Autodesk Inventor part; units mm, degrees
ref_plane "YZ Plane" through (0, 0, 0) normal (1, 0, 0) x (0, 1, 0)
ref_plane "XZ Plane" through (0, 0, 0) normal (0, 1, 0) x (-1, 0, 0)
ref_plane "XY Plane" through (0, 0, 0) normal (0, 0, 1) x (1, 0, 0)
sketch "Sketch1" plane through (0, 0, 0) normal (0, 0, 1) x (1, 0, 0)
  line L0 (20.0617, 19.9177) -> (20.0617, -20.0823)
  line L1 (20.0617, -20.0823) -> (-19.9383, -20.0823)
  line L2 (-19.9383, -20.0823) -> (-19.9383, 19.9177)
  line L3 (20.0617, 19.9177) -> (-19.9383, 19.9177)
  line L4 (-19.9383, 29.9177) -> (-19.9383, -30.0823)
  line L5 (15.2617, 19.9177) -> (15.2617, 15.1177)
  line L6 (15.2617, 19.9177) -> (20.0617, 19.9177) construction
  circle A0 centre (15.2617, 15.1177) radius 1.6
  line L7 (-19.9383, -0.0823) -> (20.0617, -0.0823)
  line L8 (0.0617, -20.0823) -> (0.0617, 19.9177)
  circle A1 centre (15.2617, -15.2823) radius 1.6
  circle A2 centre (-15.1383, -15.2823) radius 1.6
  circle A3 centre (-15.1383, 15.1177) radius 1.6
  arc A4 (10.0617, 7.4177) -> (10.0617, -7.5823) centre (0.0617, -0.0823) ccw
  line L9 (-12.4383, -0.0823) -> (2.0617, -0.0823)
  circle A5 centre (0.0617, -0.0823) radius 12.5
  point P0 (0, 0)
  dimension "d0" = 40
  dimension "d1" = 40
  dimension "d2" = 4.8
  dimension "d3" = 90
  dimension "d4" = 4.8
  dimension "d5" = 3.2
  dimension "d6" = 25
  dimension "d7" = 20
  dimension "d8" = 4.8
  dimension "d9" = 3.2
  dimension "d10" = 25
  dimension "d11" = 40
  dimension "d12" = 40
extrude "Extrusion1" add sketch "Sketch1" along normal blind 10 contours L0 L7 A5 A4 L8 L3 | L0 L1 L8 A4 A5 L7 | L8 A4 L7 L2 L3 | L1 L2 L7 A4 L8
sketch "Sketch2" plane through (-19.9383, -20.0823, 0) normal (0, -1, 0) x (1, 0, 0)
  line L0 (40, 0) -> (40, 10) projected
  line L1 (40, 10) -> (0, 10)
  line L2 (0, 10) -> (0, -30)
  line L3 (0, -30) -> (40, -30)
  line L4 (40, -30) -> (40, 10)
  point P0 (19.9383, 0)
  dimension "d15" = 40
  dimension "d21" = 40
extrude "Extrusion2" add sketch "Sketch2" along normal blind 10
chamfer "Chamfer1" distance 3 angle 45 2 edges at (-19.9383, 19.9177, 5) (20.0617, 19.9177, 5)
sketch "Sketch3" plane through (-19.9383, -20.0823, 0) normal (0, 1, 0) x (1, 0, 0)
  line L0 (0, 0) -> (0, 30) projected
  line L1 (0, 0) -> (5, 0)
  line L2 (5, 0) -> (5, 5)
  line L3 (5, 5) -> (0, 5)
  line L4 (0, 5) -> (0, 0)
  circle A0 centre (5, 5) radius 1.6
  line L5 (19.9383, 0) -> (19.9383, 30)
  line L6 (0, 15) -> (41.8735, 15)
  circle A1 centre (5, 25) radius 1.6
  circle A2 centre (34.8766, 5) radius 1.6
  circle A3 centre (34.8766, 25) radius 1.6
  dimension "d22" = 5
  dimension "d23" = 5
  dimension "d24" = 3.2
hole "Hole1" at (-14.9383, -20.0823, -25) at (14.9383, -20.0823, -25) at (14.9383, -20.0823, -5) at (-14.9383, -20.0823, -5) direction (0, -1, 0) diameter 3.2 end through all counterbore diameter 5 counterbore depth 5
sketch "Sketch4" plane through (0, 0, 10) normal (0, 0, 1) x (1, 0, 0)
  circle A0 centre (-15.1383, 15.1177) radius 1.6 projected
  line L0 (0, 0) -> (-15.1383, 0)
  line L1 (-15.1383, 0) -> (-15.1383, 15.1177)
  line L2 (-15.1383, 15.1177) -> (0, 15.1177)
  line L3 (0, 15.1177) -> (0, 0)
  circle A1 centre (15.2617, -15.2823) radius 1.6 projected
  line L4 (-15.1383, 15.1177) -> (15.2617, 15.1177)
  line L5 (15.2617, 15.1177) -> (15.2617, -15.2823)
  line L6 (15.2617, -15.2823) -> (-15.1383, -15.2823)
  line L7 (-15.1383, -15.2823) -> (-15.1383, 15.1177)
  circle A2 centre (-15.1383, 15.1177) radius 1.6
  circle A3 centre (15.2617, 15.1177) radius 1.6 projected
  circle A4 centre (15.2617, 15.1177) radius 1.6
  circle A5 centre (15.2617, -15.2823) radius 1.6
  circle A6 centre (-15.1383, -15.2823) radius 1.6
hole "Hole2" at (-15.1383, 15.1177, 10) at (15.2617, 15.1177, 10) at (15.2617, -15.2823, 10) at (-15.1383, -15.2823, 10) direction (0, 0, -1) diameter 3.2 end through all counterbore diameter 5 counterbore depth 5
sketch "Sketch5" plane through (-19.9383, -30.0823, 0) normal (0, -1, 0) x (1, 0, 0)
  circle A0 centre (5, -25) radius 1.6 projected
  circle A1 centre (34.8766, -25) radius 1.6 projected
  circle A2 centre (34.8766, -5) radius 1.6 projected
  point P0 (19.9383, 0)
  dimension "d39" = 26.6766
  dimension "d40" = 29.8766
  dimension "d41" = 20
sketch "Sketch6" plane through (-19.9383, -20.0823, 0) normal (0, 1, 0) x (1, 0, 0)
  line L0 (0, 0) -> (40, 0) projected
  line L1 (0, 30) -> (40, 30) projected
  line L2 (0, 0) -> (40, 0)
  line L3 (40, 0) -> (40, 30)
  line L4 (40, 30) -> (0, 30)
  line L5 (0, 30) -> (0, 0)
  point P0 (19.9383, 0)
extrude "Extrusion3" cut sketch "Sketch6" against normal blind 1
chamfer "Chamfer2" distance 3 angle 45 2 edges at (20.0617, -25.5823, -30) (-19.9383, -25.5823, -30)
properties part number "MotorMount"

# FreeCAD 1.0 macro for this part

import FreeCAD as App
import Part
import Sketcher


def edges_at(feature, points):
    """Names of the edges that pass closest to the given points."""
    edges = feature.Shape.Edges
    near = lambda p: min(range(len(edges)), key=lambda i: edges[i].distToShape(Part.Vertex(*p))[0])
    return sorted({f"Edge{near(p) + 1}" for p in points})


def add_polygon(sketch, points):
    """Adds a closed chain of lines whose ends are joined by coincident constraints."""
    first, n = sketch.GeometryCount, len(points)
    for a, b in zip(points, points[1:] + points[:1]):
        sketch.addGeometry(Part.LineSegment(App.Vector(*a, 0), App.Vector(*b, 0)), False)
    for i in range(n):
        sketch.addConstraint(Sketcher.Constraint("Coincident", first + i, 2, first + (i + 1) % n, 1))

doc = App.newDocument("Part")
params = doc.addObject("Spreadsheet::Sheet", "Params")
for row, (alias, value) in enumerate([
    ("sketch1_diameter", "25 mm"),
    ("sketch1_diameter2", "3.2 mm"),
    ("sketch1_width", "40 mm"),
    ("sketch1_width2", "4.8 mm"),
    ("pad1_length", "10 mm"),
    ("sketch2_width", "40 mm"),
    ("pad2_length", "10 mm"),
    ("chamfer_size", "3 mm"),
    ("sketch3_diameter", "3.2 mm"),
    ("hole_diameter", "3.2 mm"),
    ("hole_cbore_diameter", "5 mm"),
    ("hole_cbore_depth", "5 mm"),
    ("sketch4_diameter", "3.2 mm"),
    ("hole2_diameter", "3.2 mm"),
    ("hole2_cbore_diameter", "5 mm"),
    ("hole2_cbore_depth", "5 mm"),
    ("sketch5_width", "40 mm"),
    ("sketch5_height", "30 mm"),
    ("pocket1_length", "1 mm"),
    ("chamfer2_size", "3 mm"),
], start=1):
    params.set(f"A{row}", alias)
    params.set(f"B{row}", "=" + value)
    params.setAlias(f"B{row}", alias)

body = doc.addObject("PartDesign::Body", "Body")

# Sketch on XY plane
sketch1 = body.newObject("Sketcher::SketchObject", "Sketch")
sketch1.AttachmentSupport = (doc.getObject("XY_Plane"), [""])
sketch1.MapMode = "FlatFace"
add_polygon(sketch1, [(20.1, 19.9), (15.3, 19.9), (-19.9, 19.9), (-19.9, -20.1), (20.1, -20.1)])  # lines 0-4
sketch1.addGeometry(Part.Circle(App.Vector(0.1, -0.1, 0), App.Vector(0, 0, 1), 12.5), False)  # 5
sketch1.addGeometry(Part.Circle(App.Vector(15.3, 15.1, 0), App.Vector(0, 0, 1), 1.6), False)  # 6
sketch1.addGeometry(Part.Circle(App.Vector(15.3, -15.3, 0), App.Vector(0, 0, 1), 1.6), False)  # 7
sketch1.addGeometry(Part.Circle(App.Vector(-15.1, 15.1, 0), App.Vector(0, 0, 1), 1.6), False)  # 8
sketch1.addGeometry(Part.Circle(App.Vector(-15.1, -15.3, 0), App.Vector(0, 0, 1), 1.6), False)  # 9
sketch1.addConstraint([
    Sketcher.Constraint("Horizontal", 0),
    Sketcher.Constraint("Horizontal", 1),
    Sketcher.Constraint("Vertical", 2),
    Sketcher.Constraint("Horizontal", 3),
    Sketcher.Constraint("Vertical", 4),
    Sketcher.Constraint("Equal", 6, 7),
    Sketcher.Constraint("Equal", 7, 8),
    Sketcher.Constraint("Equal", 8, 9),
    Sketcher.Constraint("Horizontal", 6, 3, 8, 3),
    Sketcher.Constraint("Horizontal", 7, 3, 9, 3),
    Sketcher.Constraint("Vertical", 6, 3, 7, 3),
    Sketcher.Constraint("Vertical", 8, 3, 9, 3),
    Sketcher.Constraint("Vertical", 7, 3, 0, 2),
    Sketcher.Constraint("Equal", 3, 2),
    Sketcher.Constraint("Diameter", 5, 25.0),
    Sketcher.Constraint("Diameter", 6, 3.2),
    Sketcher.Constraint("DistanceX", 3, 1, 3, 2, 40.0),
    Sketcher.Constraint("DistanceX", 0, 2, 0, 1, 4.8),
    Sketcher.Constraint("DistanceY", 5, 3, 0, 2, 20.0),
    Sketcher.Constraint("DistanceX", 1, 2, 5, 3, 20.0),
    Sketcher.Constraint("DistanceY", 6, 3, 0, 2, 4.8),
    Sketcher.Constraint("DistanceX", 1, 2, 8, 3, 4.8),
    Sketcher.Constraint("DistanceY", 2, 2, 9, 3, 4.8),
    Sketcher.Constraint("DistanceX", -1, 1, 5, 3, 0.0617),
    Sketcher.Constraint("DistanceY", 5, 3, -1, 1, 0.0823),
])
sketch1.setExpression("Constraints[19]", "Params.sketch1_diameter")
sketch1.setExpression("Constraints[20]", "Params.sketch1_diameter2")
sketch1.setExpression("Constraints[21]", "Params.sketch1_width")
sketch1.setExpression("Constraints[22]", "Params.sketch1_width2")
pad1 = body.newObject("PartDesign::Pad", "Pad")
pad1.Profile = sketch1
pad1.setExpression("Length", "Params.pad1_length")

# Sketch on XZ plane
sketch2 = body.newObject("Sketcher::SketchObject", "Sketch001")
sketch2.AttachmentSupport = (doc.getObject("XZ_Plane"), [""])
sketch2.MapMode = "FlatFace"
sketch2.AttachmentOffset = App.Placement(App.Vector(0, 0, 20.0823), App.Rotation())
add_polygon(sketch2, [(20, -30), (20, 10), (-20, 10), (-20, -30)])  # lines 0-3
sketch2.addConstraint([
    Sketcher.Constraint("Vertical", 0),
    Sketcher.Constraint("Horizontal", 1),
    Sketcher.Constraint("Vertical", 2),
    Sketcher.Constraint("Horizontal", 3),
    Sketcher.Constraint("Equal", 3, 0),
    Sketcher.Constraint("DistanceX", 1, 2, 1, 1, 40.0),
    Sketcher.Constraint("DistanceY", -1, 1, 0, 2, 10.0),
    Sketcher.Constraint("DistanceX", -1, 1, 0, 2, 20.0617),
])
sketch2.setExpression("Constraints[9]", "Params.sketch2_width")
pad2 = body.newObject("PartDesign::Pad", "Pad001")
pad2.Profile = sketch2
pad2.setExpression("Length", "Params.pad2_length")
doc.recompute()

chamfer = body.newObject("PartDesign::Chamfer", "Chamfer")
chamfer.Base = (pad2, edges_at(pad2, [(-19.938, 19.918, 5), (20.062, 19.918, 5)]))
chamfer.setExpression("Size", "Params.chamfer_size")

# Sketch on XZ plane
sketch3 = body.newObject("Sketcher::SketchObject", "Sketch002")
sketch3.AttachmentSupport = (doc.getObject("XZ_Plane"), [""])
sketch3.MapMode = "FlatFace"
sketch3.AttachmentOffset = App.Placement(App.Vector(0, 0, 20.0823), App.Rotation())
sketch3.addGeometry([
    Part.Circle(App.Vector(-14.9, -25, 0), App.Vector(0, 0, 1), 1.6),
    Part.Circle(App.Vector(14.9, -25, 0), App.Vector(0, 0, 1), 1.6),
    Part.Circle(App.Vector(14.9, -5, 0), App.Vector(0, 0, 1), 1.6),
    Part.Circle(App.Vector(-14.9, -5, 0), App.Vector(0, 0, 1), 1.6),
], False)
sketch3.addConstraint([
    Sketcher.Constraint("Equal", 0, 1),
    Sketcher.Constraint("Equal", 1, 2),
    Sketcher.Constraint("Equal", 2, 3),
    Sketcher.Constraint("Symmetric", 0, 3, 1, 3, -2),
    Sketcher.Constraint("Symmetric", 2, 3, 3, 3, -2),
    Sketcher.Constraint("Vertical", 1, 3, 2, 3),
    Sketcher.Constraint("Diameter", 0, 3.2),
    Sketcher.Constraint("DistanceY", 0, 3, -1, 1, 25.0),
    Sketcher.Constraint("DistanceY", 2, 3, -1, 1, 5.0),
    Sketcher.Constraint("DistanceX", 0, 3, -1, 1, 14.9383),
])
sketch3.setExpression("Constraints[6]", "Params.sketch3_diameter")
doc.recompute()
hole = body.newObject("PartDesign::Hole", "Hole")
hole.Profile = sketch3
hole.ThreadType = "None"
hole.setExpression("Diameter", "Params.hole_diameter")
hole.DepthType = "ThroughAll"
hole.HoleCutType = "Counterbore"
hole.setExpression("HoleCutDiameter", "Params.hole_cbore_diameter")
hole.setExpression("HoleCutDepth", "Params.hole_cbore_depth")
hole.Reversed = True

# Sketch on XY plane
sketch4 = body.newObject("Sketcher::SketchObject", "Sketch003")
sketch4.AttachmentSupport = (doc.getObject("XY_Plane"), [""])
sketch4.MapMode = "FlatFace"
sketch4.AttachmentOffset = App.Placement(App.Vector(0, 0, 10), App.Rotation())
sketch4.addGeometry([
    Part.Circle(App.Vector(-15.1, 15.1, 0), App.Vector(0, 0, 1), 1.6),
    Part.Circle(App.Vector(15.3, 15.1, 0), App.Vector(0, 0, 1), 1.6),
    Part.Circle(App.Vector(15.3, -15.3, 0), App.Vector(0, 0, 1), 1.6),
    Part.Circle(App.Vector(-15.1, -15.3, 0), App.Vector(0, 0, 1), 1.6),
], False)
sketch4.addConstraint([
    Sketcher.Constraint("Equal", 0, 1),
    Sketcher.Constraint("Equal", 1, 2),
    Sketcher.Constraint("Equal", 2, 3),
    Sketcher.Constraint("Horizontal", 0, 3, 1, 3),
    Sketcher.Constraint("Horizontal", 2, 3, 3, 3),
    Sketcher.Constraint("Vertical", 1, 3, 2, 3),
    Sketcher.Constraint("Vertical", 0, 3, 3, 3),
    Sketcher.Constraint("Diameter", 0, 3.2),
    Sketcher.Constraint("DistanceX", 0, 3, 1, 3, 30.4),
    Sketcher.Constraint("DistanceY", 2, 3, 1, 3, 30.4),
    Sketcher.Constraint("DistanceX", 0, 3, -1, 1, 15.1383),
    Sketcher.Constraint("DistanceY", -1, 1, 0, 3, 15.1177),
])
sketch4.setExpression("Constraints[7]", "Params.sketch4_diameter")
doc.recompute()
hole2 = body.newObject("PartDesign::Hole", "Hole001")
hole2.Profile = sketch4
hole2.ThreadType = "None"
hole2.setExpression("Diameter", "Params.hole2_diameter")
hole2.DepthType = "ThroughAll"
hole2.HoleCutType = "Counterbore"
hole2.setExpression("HoleCutDiameter", "Params.hole2_cbore_diameter")
hole2.setExpression("HoleCutDepth", "Params.hole2_cbore_depth")

# Sketch on XZ plane
sketch5 = body.newObject("Sketcher::SketchObject", "Sketch004")
sketch5.AttachmentSupport = (doc.getObject("XZ_Plane"), [""])
sketch5.MapMode = "FlatFace"
sketch5.AttachmentOffset = App.Placement(App.Vector(0, 0, 20.0823), App.Rotation())
add_polygon(sketch5, [(-20, -30), (-20, 0), (20, 0), (20, -30)])  # lines 0-3
sketch5.addConstraint([
    Sketcher.Constraint("Vertical", 0),
    Sketcher.Constraint("Horizontal", 1),
    Sketcher.Constraint("Vertical", 2),
    Sketcher.Constraint("Horizontal", 3),
    Sketcher.Constraint("PointOnObject", 0, 2, -1),
    Sketcher.Constraint("DistanceX", 1, 1, 1, 2, 40.0),
    Sketcher.Constraint("DistanceY", 0, 1, 0, 2, 30.0),
    Sketcher.Constraint("DistanceX", 0, 2, -1, 1, 19.9383),
])
sketch5.setExpression("Constraints[9]", "Params.sketch5_width")
sketch5.setExpression("Constraints[10]", "Params.sketch5_height")
pocket1 = body.newObject("PartDesign::Pocket", "Pocket")
pocket1.Profile = sketch5
pocket1.setExpression("Length", "Params.pocket1_length")
pocket1.Reversed = True
doc.recompute()

chamfer2 = body.newObject("PartDesign::Chamfer", "Chamfer001")
chamfer2.Base = (pocket1, edges_at(pocket1, [(20.062, -25.582, -30), (-19.938, -25.582, -30)]))
chamfer2.setExpression("Size", "Params.chamfer2_size")

doc.recompute()
